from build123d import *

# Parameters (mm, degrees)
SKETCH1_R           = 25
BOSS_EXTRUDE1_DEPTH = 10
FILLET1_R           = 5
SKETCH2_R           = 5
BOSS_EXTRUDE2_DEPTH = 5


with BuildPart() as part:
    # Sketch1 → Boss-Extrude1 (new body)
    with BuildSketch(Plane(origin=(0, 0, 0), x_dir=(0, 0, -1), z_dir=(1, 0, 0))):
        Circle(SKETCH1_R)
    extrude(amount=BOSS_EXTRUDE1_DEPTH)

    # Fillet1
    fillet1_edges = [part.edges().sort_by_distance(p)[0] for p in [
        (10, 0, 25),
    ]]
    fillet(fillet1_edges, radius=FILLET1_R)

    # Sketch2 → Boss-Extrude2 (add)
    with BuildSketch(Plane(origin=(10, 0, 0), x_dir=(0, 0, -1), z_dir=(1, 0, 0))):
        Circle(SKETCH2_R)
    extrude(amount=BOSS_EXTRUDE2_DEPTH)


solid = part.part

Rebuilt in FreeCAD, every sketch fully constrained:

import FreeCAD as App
import Part
import Sketcher

V = App.Vector
Q = App.Units.Quantity


def edges_at(feature, points):
    """Names of the edges that pass closest to the given points."""
    edges = feature.Shape.Edges
    near = lambda p: min(range(len(edges)), key=lambda i: edges[i].distToShape(Part.Vertex(*p))[0])
    return sorted({f"Edge{near(p) + 1}" for p in points})

doc = App.newDocument("Part")
body = doc.addObject("PartDesign::Body", "Body")

# Sketch on YZ plane
sketch1 = doc.addObject("Sketcher::SketchObject", "Sketch")
body.addObject(sketch1)
sketch1.AttachmentSupport = (doc.YZ_Plane, [""])
sketch1.MapMode = "FlatFace"
sketch1.addGeometry(Part.Circle(V(0, 0, 0), V(0, 0, 1), 25), False)
sketch1.addConstraint([
    Sketcher.Constraint("Coincident", 0, 3, -1, 1),
    Sketcher.Constraint("Diameter", 0, Q("50 mm")),
])
pad1 = doc.addObject("PartDesign::Pad", "Pad")
body.addObject(pad1)
pad1.Profile = sketch1
pad1.Length = 10
doc.recompute()

fillet = doc.addObject("PartDesign::Fillet", "Fillet")
body.addObject(fillet)
fillet.Base = (pad1, edges_at(pad1, [(10, 0, 25)]))
fillet.Radius = 5

# Sketch on YZ plane
sketch2 = doc.addObject("Sketcher::SketchObject", "Sketch001")
body.addObject(sketch2)
sketch2.AttachmentSupport = (doc.YZ_Plane, [""])
sketch2.MapMode = "FlatFace"
sketch2.AttachmentOffset = App.Placement(V(0, 0, 10), App.Rotation())
sketch2.addGeometry(Part.Circle(V(0, 0, 0), V(0, 0, 1), 5), False)
sketch2.addConstraint([
    Sketcher.Constraint("Coincident", 0, 3, -1, 1),
    Sketcher.Constraint("Diameter", 0, Q("10 mm")),
])
pad2 = doc.addObject("PartDesign::Pad", "Pad001")
body.addObject(pad2)
pad2.Profile = sketch2
pad2.Length = 5

doc.recompute()
